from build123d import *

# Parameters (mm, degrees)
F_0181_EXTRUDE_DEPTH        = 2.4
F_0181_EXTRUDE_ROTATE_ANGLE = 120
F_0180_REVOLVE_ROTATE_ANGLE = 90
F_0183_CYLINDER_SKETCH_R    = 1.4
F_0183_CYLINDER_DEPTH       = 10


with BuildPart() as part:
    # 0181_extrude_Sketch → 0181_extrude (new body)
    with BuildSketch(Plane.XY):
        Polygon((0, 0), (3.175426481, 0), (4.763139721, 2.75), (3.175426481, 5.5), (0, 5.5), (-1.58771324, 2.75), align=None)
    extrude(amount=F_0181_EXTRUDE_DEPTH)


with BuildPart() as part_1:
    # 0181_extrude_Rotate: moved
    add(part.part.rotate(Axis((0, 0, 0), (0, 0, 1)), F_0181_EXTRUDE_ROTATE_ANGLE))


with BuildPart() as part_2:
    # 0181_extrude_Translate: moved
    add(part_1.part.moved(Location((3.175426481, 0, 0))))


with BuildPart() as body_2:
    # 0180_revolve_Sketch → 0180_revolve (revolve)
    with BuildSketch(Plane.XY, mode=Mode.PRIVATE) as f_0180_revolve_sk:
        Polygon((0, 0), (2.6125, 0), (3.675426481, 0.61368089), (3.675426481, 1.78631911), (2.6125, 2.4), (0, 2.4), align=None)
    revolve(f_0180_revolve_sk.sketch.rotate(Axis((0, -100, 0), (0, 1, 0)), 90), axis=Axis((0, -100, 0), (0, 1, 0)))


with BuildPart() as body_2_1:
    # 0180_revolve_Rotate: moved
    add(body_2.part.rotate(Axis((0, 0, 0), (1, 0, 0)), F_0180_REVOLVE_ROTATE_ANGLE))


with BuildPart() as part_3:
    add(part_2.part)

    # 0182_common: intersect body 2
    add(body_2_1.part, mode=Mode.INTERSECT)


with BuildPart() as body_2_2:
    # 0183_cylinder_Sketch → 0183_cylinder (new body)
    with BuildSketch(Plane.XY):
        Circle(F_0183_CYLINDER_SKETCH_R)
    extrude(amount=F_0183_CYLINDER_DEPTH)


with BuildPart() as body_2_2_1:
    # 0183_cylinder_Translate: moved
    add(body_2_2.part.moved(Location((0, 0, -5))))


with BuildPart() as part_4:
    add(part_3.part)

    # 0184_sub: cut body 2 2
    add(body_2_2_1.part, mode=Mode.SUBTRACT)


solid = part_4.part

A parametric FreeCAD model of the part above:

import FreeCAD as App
import Part
import Sketcher
Q = App.Units.Quantity


def add_polygon(sketch, points):
    """Adds a closed chain of lines whose ends are joined by coincident constraints."""
    first, n = sketch.GeometryCount, len(points)
    for a, b in zip(points, points[1:] + points[:1]):
        sketch.addGeometry(Part.LineSegment(App.Vector(*a, 0), App.Vector(*b, 0)), False)
    for i in range(n):
        sketch.addConstraint(Sketcher.Constraint("Coincident", first + i, 2, first + (i + 1) % n, 1))

doc = App.newDocument("Part")
body = doc.addObject("PartDesign::Body", "Body")

sketch1 = doc.addObject("Sketcher::SketchObject", "Sketch")
body.addObject(sketch1)
sketch1.AttachmentSupport = (doc.XY_Plane, [""])
sketch1.MapMode = "FlatFace"
add_polygon(sketch1, [(0, 0), (3.175426, 0), (4.76314, 2.75), (3.175426, 5.5), (0, 5.5), (-1.587713, 2.75)])
sketch1.addConstraint([
    Sketcher.Constraint("Horizontal", 0),
    Sketcher.Constraint("Horizontal", 3),
    Sketcher.Constraint("Coincident", 5, 2, -1, 1),
    Sketcher.Constraint("PointOnObject", 3, 2, -2),
    Sketcher.Constraint("Parallel", 1, 4),
    Sketcher.Constraint("Parallel", 2, 5),
    Sketcher.Constraint("Horizontal", 1, 2, 4, 2),
    Sketcher.Constraint("Vertical", 0, 2, 2, 2),
    Sketcher.Constraint("Angle", 1, Q("60 deg")),
    Sketcher.Constraint("DistanceY", -1, 1, 2, 2, Q("5.5 mm")),
    Sketcher.Constraint("DistanceX", 0, 1, 0, 2, Q("3.175426 mm")),
])
pad1 = doc.addObject("PartDesign::Pad", "Pad")
body.addObject(pad1)
pad1.Profile = sketch1
pad1.Length = 2.4
body2 = doc.addObject("PartDesign::Body", "Body001")
doc.recompute()

body.Placement = App.Placement(App.Vector(0, 0, 0), App.Rotation(App.Vector(0, 0, 1), 120))
boolean = doc.addObject("PartDesign::Boolean", "Boolean")
body2.addObject(boolean)
boolean.Type = "Fuse"
boolean.addObjects([body])
body3 = doc.addObject("PartDesign::Body", "Body002")
doc.recompute()

body2.Placement = App.Placement(App.Vector(3.175426, 0, 0), App.Rotation(App.Vector(0, 0, 1), 0))
boolean2 = doc.addObject("PartDesign::Boolean", "Boolean001")
body3.addObject(boolean2)
boolean2.Type = "Fuse"
boolean2.addObjects([body2])
body4 = doc.addObject("PartDesign::Body", "Body003")

sketch2 = doc.addObject("Sketcher::SketchObject", "Sketch001")
body4.addObject(sketch2)
sketch2.AttachmentSupport = (doc.getObject("XY_Plane003"), [""])
sketch2.MapMode = "FlatFace"
add_polygon(sketch2, [(0, 0), (2.6125, 0), (3.675426, 0.613681), (3.675426, 1.786319), (2.6125, 2.4), (0, 2.4)])
sketch2.addConstraint([
    Sketcher.Constraint("Horizontal", 0),
    Sketcher.Constraint("Vertical", 2),
    Sketcher.Constraint("Horizontal", 4),
    Sketcher.Constraint("Vertical", 5),
    Sketcher.Constraint("Coincident", 5, 2, -1, 1),
    Sketcher.Constraint("Vertical", 0, 2, 3, 2),
    Sketcher.Constraint("Equal", 1, 3),
    Sketcher.Constraint("Angle", 1, Q("30 deg")),
    Sketcher.Constraint("DistanceY", 5, 2, 5, 1, Q("2.4 mm")),
    Sketcher.Constraint("DistanceX", 0, 1, 0, 2, Q("2.6125 mm")),
    Sketcher.Constraint("DistanceY", 2, 1, 2, 2, Q("1.172638 mm")),
])
revolution = doc.addObject("PartDesign::Revolution", "Revolution")
body4.addObject(revolution)
revolution.Profile = sketch2
revolution.ReferenceAxis = (sketch2, ["V_Axis"])
revolution.Angle = 360
body5 = doc.addObject("PartDesign::Body", "Body004")
doc.recompute()

body4.Placement = App.Placement(App.Vector(0, 0, 0), App.Rotation(App.Vector(1, 0, 0), 90))
boolean3 = doc.addObject("PartDesign::Boolean", "Boolean002")
body5.addObject(boolean3)
boolean3.Type = "Fuse"
boolean3.addObjects([body4])
doc.recompute()

boolean4 = doc.addObject("PartDesign::Boolean", "Boolean003")
body3.addObject(boolean4)
boolean4.Type = "Common"
boolean4.addObjects([body5])
body6 = doc.addObject("PartDesign::Body", "Body005")

sketch3 = doc.addObject("Sketcher::SketchObject", "Sketch002")
body6.addObject(sketch3)
sketch3.AttachmentSupport = (doc.getObject("XY_Plane005"), [""])
sketch3.MapMode = "FlatFace"
sketch3.addGeometry(Part.Circle(App.Vector(0, 0, 0), App.Vector(0, 0, 1), 1.4), False)
sketch3.addConstraint([
    Sketcher.Constraint("Coincident", 0, 3, -1, 1),
    Sketcher.Constraint("Diameter", 0, Q("2.8 mm")),
])
pad2 = doc.addObject("PartDesign::Pad", "Pad001")
body6.addObject(pad2)
pad2.Profile = sketch3
pad2.Length = 10
body7 = doc.addObject("PartDesign::Body", "Body006")
doc.recompute()

body6.Placement = App.Placement(App.Vector(0, 0, -5), App.Rotation(App.Vector(0, 0, 1), 0))
boolean5 = doc.addObject("PartDesign::Boolean", "Boolean004")
body7.addObject(boolean5)
boolean5.Type = "Fuse"
boolean5.addObjects([body6])
doc.recompute()

boolean6 = doc.addObject("PartDesign::Boolean", "Boolean005")
body3.addObject(boolean6)
boolean6.Type = "Cut"
boolean6.addObjects([body7])

doc.recompute()
